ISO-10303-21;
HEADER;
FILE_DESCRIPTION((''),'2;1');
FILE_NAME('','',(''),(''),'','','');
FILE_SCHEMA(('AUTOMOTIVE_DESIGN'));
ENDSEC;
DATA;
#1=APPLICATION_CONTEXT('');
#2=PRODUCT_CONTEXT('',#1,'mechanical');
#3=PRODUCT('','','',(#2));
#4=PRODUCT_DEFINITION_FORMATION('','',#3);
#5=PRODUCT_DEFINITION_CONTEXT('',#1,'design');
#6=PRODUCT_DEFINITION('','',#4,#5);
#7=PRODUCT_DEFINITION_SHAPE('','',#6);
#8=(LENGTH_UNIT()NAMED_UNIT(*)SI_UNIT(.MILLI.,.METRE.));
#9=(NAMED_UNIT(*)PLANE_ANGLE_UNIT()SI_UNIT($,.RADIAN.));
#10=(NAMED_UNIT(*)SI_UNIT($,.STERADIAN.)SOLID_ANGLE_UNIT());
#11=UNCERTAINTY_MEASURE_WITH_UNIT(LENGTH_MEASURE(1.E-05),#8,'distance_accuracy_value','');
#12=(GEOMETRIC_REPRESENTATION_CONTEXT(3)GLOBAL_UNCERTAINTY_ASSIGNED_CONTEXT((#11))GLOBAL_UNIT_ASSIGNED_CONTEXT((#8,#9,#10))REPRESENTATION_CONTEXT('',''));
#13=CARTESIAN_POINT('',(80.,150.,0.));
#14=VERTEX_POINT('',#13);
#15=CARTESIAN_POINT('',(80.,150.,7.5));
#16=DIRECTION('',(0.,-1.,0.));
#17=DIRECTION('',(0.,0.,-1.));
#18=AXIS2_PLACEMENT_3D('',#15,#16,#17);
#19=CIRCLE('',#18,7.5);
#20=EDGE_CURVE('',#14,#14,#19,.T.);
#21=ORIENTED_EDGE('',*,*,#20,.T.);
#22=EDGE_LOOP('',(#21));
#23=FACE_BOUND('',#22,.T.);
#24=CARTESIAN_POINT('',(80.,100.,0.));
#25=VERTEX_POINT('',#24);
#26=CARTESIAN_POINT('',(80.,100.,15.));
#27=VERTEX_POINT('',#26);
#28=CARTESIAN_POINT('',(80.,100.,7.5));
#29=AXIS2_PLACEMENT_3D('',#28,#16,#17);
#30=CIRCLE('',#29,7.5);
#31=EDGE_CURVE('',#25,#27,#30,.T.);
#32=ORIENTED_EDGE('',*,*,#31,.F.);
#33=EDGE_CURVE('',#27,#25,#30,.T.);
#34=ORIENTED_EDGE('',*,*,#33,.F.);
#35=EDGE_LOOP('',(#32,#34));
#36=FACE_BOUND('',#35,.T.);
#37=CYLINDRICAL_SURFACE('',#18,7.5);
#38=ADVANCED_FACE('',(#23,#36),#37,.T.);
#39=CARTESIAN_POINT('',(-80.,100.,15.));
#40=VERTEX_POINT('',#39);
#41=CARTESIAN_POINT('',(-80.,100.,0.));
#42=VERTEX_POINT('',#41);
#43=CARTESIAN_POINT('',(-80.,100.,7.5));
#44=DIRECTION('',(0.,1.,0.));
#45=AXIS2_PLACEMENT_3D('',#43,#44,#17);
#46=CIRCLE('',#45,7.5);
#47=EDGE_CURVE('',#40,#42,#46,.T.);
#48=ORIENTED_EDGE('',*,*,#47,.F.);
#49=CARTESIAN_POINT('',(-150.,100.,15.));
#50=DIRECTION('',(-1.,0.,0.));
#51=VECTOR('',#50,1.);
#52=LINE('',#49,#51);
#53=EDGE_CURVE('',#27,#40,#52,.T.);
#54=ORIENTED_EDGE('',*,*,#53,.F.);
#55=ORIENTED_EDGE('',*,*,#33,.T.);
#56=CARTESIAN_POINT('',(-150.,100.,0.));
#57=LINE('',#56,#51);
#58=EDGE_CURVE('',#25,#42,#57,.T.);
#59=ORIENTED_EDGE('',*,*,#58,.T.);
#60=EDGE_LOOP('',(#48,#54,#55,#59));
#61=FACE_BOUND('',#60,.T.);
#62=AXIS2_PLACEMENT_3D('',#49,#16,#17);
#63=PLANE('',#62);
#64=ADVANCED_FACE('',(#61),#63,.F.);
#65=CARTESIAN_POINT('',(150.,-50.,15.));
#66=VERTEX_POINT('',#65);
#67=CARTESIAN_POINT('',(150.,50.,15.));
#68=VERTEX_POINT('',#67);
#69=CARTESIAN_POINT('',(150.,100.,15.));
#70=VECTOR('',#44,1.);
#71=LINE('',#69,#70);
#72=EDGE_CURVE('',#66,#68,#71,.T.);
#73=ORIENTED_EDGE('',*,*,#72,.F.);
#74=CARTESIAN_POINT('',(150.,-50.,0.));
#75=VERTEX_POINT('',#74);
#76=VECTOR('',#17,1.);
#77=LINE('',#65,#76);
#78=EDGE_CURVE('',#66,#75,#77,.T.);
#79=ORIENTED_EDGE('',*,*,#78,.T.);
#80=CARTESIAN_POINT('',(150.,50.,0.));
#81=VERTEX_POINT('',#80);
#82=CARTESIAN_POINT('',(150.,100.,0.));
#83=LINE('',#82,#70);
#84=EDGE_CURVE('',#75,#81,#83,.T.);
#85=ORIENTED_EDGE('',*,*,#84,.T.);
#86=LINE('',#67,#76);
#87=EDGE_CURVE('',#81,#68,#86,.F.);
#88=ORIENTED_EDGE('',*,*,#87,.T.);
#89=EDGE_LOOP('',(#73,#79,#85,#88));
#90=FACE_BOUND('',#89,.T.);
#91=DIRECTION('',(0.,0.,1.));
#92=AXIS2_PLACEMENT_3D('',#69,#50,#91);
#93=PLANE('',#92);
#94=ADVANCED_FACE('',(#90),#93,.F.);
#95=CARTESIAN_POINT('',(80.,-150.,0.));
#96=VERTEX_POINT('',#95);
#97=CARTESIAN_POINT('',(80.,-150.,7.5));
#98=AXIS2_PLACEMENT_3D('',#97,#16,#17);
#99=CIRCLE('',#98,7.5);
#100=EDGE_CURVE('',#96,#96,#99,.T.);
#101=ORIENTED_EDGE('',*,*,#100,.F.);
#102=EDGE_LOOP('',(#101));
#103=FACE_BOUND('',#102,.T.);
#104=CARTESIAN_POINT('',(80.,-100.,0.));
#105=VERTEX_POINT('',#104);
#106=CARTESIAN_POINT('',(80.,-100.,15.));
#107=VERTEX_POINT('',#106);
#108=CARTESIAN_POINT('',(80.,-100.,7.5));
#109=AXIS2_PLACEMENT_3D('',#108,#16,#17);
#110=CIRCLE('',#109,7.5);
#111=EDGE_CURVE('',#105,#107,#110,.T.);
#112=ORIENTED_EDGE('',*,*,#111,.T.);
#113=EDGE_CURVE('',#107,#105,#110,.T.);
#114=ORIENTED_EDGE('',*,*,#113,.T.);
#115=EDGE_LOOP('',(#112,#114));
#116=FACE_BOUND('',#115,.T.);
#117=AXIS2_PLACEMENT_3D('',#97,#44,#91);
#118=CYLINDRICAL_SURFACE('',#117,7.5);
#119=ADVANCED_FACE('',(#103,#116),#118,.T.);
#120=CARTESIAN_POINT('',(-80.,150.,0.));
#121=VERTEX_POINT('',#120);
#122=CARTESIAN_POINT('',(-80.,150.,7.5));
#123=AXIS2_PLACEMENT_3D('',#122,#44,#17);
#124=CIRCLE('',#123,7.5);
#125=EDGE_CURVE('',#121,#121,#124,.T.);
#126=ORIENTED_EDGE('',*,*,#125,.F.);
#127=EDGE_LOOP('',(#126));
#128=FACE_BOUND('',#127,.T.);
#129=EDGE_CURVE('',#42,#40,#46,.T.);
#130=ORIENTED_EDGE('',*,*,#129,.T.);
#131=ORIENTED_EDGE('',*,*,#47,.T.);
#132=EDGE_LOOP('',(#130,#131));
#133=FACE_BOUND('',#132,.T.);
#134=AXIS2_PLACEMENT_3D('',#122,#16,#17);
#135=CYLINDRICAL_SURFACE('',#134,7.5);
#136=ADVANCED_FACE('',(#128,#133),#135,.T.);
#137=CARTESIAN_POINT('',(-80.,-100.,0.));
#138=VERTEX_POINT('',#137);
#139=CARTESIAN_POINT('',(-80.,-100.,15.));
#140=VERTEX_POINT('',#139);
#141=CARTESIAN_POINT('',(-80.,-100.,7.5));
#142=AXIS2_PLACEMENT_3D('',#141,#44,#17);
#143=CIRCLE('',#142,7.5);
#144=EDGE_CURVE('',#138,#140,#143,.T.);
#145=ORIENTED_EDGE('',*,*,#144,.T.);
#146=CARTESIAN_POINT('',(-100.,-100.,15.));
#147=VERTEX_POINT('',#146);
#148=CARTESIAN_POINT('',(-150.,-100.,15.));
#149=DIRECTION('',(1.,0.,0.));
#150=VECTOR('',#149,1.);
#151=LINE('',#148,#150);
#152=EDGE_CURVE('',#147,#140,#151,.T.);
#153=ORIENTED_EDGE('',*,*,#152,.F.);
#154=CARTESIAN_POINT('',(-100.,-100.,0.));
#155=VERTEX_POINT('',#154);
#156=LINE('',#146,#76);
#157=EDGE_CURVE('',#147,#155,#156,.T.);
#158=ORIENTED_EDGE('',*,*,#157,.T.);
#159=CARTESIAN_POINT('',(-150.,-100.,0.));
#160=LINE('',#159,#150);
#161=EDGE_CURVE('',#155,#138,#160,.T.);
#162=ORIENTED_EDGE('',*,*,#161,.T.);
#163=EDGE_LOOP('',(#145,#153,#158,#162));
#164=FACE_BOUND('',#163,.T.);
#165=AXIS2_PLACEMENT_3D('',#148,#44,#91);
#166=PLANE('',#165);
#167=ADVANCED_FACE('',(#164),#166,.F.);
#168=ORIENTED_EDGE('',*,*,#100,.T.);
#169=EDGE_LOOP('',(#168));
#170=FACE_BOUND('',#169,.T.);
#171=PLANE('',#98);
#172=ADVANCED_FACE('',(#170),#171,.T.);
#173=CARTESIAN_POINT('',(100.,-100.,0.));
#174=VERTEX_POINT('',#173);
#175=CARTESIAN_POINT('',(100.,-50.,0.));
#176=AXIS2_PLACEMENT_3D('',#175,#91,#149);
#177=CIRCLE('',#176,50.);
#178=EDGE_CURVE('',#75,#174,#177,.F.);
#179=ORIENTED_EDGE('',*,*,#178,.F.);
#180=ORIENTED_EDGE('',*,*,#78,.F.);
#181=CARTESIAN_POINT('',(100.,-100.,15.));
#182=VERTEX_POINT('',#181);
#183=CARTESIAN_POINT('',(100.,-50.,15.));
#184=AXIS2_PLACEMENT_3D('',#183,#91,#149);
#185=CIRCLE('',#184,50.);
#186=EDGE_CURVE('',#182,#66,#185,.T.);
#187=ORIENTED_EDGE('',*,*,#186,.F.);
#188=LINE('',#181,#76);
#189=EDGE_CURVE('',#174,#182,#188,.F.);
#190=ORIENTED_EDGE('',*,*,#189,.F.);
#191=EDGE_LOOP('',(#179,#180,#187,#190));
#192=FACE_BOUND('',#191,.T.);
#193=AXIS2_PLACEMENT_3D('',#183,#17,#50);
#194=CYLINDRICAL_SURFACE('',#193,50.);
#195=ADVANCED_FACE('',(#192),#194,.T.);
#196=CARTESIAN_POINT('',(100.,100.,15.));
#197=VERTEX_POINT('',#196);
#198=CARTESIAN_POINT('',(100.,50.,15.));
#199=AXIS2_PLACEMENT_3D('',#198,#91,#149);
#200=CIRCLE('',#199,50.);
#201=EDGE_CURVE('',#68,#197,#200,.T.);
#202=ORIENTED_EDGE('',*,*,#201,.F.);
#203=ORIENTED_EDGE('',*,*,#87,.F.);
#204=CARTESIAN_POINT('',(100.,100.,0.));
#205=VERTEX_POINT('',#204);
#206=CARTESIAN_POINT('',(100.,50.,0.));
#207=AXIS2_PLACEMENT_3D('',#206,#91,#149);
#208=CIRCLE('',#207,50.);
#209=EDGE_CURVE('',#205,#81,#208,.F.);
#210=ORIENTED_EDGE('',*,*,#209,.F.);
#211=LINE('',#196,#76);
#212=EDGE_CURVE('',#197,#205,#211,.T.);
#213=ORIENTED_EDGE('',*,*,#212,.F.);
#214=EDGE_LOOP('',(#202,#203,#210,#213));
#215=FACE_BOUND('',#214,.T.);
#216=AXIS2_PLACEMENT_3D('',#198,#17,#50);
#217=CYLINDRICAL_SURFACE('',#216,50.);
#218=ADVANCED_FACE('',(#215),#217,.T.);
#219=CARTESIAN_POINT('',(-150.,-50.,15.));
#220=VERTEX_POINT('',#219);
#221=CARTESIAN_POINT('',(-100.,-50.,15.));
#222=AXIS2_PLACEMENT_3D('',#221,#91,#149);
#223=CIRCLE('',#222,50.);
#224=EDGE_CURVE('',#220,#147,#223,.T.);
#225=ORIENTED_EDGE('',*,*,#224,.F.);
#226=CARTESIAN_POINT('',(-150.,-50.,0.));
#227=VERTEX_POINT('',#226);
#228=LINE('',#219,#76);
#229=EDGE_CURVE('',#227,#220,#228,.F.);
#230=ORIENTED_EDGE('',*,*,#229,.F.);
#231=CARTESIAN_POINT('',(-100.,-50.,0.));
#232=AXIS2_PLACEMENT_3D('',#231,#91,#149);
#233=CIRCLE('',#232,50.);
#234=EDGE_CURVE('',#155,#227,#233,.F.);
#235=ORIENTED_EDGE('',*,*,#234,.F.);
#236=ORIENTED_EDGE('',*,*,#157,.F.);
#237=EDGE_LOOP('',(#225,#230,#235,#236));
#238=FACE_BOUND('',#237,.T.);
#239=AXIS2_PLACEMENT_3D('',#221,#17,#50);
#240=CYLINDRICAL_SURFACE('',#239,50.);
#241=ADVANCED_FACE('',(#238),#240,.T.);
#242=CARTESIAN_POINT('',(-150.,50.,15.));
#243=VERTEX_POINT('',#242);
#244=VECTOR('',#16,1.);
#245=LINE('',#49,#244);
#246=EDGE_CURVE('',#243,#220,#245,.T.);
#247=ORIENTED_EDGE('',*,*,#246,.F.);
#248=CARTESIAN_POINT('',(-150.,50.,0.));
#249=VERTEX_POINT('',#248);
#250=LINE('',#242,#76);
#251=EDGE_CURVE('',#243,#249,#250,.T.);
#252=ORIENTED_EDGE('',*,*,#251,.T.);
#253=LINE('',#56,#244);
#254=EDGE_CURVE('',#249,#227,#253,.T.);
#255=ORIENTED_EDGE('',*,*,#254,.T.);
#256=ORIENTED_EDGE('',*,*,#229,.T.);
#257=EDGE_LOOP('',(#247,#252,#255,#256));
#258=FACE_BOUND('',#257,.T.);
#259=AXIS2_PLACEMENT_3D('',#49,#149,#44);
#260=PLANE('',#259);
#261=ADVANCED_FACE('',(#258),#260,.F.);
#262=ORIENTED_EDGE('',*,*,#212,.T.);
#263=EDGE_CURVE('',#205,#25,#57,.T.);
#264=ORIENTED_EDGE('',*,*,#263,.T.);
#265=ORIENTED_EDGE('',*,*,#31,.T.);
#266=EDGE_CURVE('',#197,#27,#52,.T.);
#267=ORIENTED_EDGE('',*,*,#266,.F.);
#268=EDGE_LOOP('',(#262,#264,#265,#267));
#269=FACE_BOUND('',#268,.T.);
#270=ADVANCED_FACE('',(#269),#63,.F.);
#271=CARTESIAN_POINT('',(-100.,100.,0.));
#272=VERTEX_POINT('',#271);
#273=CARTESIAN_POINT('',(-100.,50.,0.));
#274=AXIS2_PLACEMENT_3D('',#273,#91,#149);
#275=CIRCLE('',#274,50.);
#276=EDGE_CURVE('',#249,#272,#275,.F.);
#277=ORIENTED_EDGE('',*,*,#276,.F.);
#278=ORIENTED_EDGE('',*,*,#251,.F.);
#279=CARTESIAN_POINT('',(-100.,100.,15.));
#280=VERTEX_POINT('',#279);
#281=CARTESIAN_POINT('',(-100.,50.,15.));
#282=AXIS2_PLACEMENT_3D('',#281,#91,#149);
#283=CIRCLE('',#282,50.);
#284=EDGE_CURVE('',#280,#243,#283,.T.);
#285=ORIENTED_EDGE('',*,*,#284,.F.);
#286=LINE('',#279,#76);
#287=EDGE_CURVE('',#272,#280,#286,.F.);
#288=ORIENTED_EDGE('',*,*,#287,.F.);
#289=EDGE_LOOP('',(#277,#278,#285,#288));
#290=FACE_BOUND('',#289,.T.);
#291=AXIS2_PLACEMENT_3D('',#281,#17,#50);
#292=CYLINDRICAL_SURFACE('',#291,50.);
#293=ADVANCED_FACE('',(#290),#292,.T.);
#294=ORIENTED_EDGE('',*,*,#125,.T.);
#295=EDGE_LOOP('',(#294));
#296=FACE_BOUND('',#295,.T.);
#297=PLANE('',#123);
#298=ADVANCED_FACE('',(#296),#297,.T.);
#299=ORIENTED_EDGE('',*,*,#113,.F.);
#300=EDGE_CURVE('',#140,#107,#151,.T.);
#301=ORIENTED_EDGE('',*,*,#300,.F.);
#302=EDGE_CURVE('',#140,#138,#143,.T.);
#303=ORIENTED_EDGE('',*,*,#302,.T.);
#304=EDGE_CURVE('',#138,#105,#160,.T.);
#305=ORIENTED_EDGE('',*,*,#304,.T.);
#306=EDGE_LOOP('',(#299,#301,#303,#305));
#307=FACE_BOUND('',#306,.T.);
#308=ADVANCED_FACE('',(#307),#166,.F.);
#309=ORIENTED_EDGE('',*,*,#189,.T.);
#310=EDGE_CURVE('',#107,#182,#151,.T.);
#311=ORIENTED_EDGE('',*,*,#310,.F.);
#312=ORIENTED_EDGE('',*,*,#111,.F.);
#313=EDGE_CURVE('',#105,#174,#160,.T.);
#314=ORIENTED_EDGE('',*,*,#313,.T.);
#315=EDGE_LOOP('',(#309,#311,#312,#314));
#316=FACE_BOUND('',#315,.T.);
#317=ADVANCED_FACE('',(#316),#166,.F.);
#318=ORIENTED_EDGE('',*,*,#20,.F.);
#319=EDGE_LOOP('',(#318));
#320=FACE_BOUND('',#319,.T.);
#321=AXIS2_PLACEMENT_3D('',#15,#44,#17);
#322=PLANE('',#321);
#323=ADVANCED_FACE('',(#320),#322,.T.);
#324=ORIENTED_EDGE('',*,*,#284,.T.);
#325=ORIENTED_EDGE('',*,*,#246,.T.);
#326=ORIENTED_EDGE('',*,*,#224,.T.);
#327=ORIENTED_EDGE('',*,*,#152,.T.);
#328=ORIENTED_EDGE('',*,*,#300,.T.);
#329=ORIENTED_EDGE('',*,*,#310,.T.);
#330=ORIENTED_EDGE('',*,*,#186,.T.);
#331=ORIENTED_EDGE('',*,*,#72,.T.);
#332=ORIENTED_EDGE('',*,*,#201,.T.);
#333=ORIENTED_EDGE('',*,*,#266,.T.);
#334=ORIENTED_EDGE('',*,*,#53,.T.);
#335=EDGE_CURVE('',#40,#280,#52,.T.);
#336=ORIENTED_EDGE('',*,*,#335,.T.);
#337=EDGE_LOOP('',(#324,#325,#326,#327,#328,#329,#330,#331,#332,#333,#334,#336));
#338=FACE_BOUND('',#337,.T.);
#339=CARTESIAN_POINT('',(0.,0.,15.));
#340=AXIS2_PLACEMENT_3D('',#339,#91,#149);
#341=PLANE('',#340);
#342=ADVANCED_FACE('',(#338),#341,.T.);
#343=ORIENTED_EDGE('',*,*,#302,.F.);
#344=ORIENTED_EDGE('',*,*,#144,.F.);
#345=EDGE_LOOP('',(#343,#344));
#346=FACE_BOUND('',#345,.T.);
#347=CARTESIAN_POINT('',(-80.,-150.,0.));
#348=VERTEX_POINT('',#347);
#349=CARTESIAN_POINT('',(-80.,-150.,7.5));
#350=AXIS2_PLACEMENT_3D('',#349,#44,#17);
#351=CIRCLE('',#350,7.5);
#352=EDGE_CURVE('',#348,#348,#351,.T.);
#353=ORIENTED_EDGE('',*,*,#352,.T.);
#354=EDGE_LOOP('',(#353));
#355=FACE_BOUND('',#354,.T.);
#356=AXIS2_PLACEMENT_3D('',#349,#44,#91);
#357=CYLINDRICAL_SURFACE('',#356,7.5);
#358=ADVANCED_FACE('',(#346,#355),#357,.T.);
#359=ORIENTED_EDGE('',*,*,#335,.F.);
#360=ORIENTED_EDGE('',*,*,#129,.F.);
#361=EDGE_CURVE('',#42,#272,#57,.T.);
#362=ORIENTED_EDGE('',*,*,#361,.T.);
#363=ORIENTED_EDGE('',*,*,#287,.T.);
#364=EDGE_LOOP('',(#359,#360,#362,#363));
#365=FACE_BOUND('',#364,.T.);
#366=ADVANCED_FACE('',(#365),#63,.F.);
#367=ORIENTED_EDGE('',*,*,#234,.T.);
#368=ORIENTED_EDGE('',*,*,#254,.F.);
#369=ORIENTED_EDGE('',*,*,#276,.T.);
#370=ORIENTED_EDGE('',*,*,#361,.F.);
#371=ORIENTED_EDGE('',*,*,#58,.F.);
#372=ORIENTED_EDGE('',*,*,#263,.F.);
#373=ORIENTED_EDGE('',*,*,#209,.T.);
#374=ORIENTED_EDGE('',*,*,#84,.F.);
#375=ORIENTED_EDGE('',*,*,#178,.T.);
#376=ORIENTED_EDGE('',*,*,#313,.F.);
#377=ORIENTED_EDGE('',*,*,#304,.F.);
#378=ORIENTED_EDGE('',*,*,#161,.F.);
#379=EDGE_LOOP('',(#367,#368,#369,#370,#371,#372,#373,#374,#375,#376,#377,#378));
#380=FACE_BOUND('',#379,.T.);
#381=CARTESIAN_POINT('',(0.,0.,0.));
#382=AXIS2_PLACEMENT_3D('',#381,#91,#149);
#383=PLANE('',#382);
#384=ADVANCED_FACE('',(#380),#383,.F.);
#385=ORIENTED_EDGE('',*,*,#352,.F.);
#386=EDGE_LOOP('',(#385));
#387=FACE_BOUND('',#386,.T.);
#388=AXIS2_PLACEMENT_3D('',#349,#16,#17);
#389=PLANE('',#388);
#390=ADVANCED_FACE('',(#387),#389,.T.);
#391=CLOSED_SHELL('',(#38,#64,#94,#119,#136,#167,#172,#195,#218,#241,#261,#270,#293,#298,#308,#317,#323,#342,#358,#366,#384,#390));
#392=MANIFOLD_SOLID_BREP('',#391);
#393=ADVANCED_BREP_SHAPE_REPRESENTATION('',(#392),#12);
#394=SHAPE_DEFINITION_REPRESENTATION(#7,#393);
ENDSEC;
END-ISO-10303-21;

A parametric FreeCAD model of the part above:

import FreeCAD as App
import Part
import Sketcher
from FreeCAD import Vector


def edges_at(feature, points):
    """Names of the edges that pass closest to the given points."""
    edges = feature.Shape.Edges
    near = lambda p: min(range(len(edges)), key=lambda i: edges[i].distToShape(Part.Vertex(*p))[0])
    return sorted({f"Edge{near(p) + 1}" for p in points})

doc = App.newDocument("Part")
params = doc.addObject("Spreadsheet::Sheet", "Params")
for row, (alias, value) in enumerate([
    ("sketch1_width", "300 mm"),
    ("sketch1_height", "200 mm"),
    ("pad1_length", "15 mm"),
    ("fillet_radius", "50 mm"),
    ("sketch2_diameter", "15 mm"),
    ("pad2_length", "50 mm"),
    ("sketch3_diameter", "15 mm"),
    ("pad3_length", "50 mm"),
], start=1):
    params.set(f"A{row}", alias)
    params.set(f"B{row}", "=" + value)
    params.setAlias(f"B{row}", alias)

body = doc.addObject("PartDesign::Body", "Body")

# Sketch on XY plane
sketch1 = body.newObject("Sketcher::SketchObject", "Sketch")
sketch1.AttachmentSupport = (doc.getObject("XY_Plane"), [""])
sketch1.MapMode = "FlatFace"
sketch1.addGeometry(Part.LineSegment(Vector(-150, 100, 0), Vector(-150, -100, 0)), False)
sketch1.addGeometry(Part.LineSegment(Vector(-150, -100, 0), Vector(150, -100, 0)), False)
sketch1.addGeometry(Part.LineSegment(Vector(150, -100, 0), Vector(150, 100, 0)), False)
sketch1.addGeometry(Part.LineSegment(Vector(150, 100, 0), Vector(-150, 100, 0)), False)
sketch1.addConstraint(Sketcher.Constraint("Coincident", 0, 2, 1, 1))
sketch1.addConstraint(Sketcher.Constraint("Coincident", 1, 2, 2, 1))
sketch1.addConstraint(Sketcher.Constraint("Coincident", 2, 2, 3, 1))
sketch1.addConstraint(Sketcher.Constraint("Coincident", 3, 2, 0, 1))
sketch1.addConstraint(Sketcher.Constraint("Vertical", 0))
sketch1.addConstraint(Sketcher.Constraint("Horizontal", 1))
sketch1.addConstraint(Sketcher.Constraint("Vertical", 2))
sketch1.addConstraint(Sketcher.Constraint("Horizontal", 3))
sketch1.addConstraint(Sketcher.Constraint("Symmetric", 0, 2, 2, 2, -1, 1))
sketch1.addConstraint(Sketcher.Constraint("DistanceX", 1, 1, 1, 2, 300.0))
sketch1.addConstraint(Sketcher.Constraint("DistanceY", 0, 2, 0, 1, 200.0))
sketch1.setExpression("Constraints[9]", "Params.sketch1_width")
sketch1.setExpression("Constraints[10]", "Params.sketch1_height")
pad1 = body.newObject("PartDesign::Pad", "Pad")
pad1.Profile = sketch1
pad1.setExpression("Length", "Params.pad1_length")
doc.recompute()

fillet = body.newObject("PartDesign::Fillet", "Fillet")
fillet.Base = (pad1, edges_at(pad1, [
    (150, -100, 7.5),
    (-150, -100, 7.5),
    (-150, 100, 7.5),
    (150, 100, 7.5),
]))
fillet.setExpression("Radius", "Params.fillet_radius")

# Sketch on XZ plane
sketch2 = body.newObject("Sketcher::SketchObject", "Sketch001")
sketch2.AttachmentSupport = (doc.getObject("XZ_Plane"), [""])
sketch2.MapMode = "FlatFace"
sketch2.AttachmentOffset = App.Placement(Vector(0, 0, 100), App.Rotation())
sketch2.addGeometry(Part.Circle(Vector(80, 8, 0), Vector(0, 0, 1), 8), False)
sketch2.addConstraint(Sketcher.Constraint("Diameter", 0, 15.0))
sketch2.addConstraint(Sketcher.Constraint("DistanceX", -1, 1, 0, 3, 80.0))
sketch2.addConstraint(Sketcher.Constraint("DistanceY", -1, 1, 0, 3, 7.5))
sketch2.setExpression("Constraints[0]", "Params.sketch2_diameter")
pad2 = body.newObject("PartDesign::Pad", "Pad001")
pad2.Profile = sketch2
pad2.setExpression("Length", "Params.pad2_length")
doc.recompute()

mirrored = body.newObject("PartDesign::Mirrored", "Mirrored")
mirrored.Originals = [pad2]
mirrored.MirrorPlane = (doc.getObject("YZ_Plane"), [""])
body.Tip = mirrored
doc.recompute()

mirrored2 = body.newObject("PartDesign::Mirrored", "Mirrored001")
mirrored2.Originals = [pad2]
mirrored2.MirrorPlane = (doc.getObject("XZ_Plane"), [""])
body.Tip = mirrored2

# Sketch on XZ plane
sketch3 = body.newObject("Sketcher::SketchObject", "Sketch002")
sketch3.AttachmentSupport = (doc.getObject("XZ_Plane"), [""])
sketch3.MapMode = "FlatFace"
sketch3.AttachmentOffset = App.Placement(Vector(0, 0, -100), App.Rotation())
sketch3.addGeometry(Part.Circle(Vector(-80, 8, 0), Vector(0, 0, 1), 8), False)
sketch3.addConstraint(Sketcher.Constraint("Diameter", 0, 15.0))
sketch3.addConstraint(Sketcher.Constraint("DistanceX", 0, 3, -1, 1, 80.0))
sketch3.addConstraint(Sketcher.Constraint("DistanceY", -1, 1, 0, 3, 7.5))
sketch3.setExpression("Constraints[0]", "Params.sketch3_diameter")
pad3 = body.newObject("PartDesign::Pad", "Pad002")
pad3.Profile = sketch3
pad3.setExpression("Length", "Params.pad3_length")
pad3.Reversed = True

doc.recompute()
